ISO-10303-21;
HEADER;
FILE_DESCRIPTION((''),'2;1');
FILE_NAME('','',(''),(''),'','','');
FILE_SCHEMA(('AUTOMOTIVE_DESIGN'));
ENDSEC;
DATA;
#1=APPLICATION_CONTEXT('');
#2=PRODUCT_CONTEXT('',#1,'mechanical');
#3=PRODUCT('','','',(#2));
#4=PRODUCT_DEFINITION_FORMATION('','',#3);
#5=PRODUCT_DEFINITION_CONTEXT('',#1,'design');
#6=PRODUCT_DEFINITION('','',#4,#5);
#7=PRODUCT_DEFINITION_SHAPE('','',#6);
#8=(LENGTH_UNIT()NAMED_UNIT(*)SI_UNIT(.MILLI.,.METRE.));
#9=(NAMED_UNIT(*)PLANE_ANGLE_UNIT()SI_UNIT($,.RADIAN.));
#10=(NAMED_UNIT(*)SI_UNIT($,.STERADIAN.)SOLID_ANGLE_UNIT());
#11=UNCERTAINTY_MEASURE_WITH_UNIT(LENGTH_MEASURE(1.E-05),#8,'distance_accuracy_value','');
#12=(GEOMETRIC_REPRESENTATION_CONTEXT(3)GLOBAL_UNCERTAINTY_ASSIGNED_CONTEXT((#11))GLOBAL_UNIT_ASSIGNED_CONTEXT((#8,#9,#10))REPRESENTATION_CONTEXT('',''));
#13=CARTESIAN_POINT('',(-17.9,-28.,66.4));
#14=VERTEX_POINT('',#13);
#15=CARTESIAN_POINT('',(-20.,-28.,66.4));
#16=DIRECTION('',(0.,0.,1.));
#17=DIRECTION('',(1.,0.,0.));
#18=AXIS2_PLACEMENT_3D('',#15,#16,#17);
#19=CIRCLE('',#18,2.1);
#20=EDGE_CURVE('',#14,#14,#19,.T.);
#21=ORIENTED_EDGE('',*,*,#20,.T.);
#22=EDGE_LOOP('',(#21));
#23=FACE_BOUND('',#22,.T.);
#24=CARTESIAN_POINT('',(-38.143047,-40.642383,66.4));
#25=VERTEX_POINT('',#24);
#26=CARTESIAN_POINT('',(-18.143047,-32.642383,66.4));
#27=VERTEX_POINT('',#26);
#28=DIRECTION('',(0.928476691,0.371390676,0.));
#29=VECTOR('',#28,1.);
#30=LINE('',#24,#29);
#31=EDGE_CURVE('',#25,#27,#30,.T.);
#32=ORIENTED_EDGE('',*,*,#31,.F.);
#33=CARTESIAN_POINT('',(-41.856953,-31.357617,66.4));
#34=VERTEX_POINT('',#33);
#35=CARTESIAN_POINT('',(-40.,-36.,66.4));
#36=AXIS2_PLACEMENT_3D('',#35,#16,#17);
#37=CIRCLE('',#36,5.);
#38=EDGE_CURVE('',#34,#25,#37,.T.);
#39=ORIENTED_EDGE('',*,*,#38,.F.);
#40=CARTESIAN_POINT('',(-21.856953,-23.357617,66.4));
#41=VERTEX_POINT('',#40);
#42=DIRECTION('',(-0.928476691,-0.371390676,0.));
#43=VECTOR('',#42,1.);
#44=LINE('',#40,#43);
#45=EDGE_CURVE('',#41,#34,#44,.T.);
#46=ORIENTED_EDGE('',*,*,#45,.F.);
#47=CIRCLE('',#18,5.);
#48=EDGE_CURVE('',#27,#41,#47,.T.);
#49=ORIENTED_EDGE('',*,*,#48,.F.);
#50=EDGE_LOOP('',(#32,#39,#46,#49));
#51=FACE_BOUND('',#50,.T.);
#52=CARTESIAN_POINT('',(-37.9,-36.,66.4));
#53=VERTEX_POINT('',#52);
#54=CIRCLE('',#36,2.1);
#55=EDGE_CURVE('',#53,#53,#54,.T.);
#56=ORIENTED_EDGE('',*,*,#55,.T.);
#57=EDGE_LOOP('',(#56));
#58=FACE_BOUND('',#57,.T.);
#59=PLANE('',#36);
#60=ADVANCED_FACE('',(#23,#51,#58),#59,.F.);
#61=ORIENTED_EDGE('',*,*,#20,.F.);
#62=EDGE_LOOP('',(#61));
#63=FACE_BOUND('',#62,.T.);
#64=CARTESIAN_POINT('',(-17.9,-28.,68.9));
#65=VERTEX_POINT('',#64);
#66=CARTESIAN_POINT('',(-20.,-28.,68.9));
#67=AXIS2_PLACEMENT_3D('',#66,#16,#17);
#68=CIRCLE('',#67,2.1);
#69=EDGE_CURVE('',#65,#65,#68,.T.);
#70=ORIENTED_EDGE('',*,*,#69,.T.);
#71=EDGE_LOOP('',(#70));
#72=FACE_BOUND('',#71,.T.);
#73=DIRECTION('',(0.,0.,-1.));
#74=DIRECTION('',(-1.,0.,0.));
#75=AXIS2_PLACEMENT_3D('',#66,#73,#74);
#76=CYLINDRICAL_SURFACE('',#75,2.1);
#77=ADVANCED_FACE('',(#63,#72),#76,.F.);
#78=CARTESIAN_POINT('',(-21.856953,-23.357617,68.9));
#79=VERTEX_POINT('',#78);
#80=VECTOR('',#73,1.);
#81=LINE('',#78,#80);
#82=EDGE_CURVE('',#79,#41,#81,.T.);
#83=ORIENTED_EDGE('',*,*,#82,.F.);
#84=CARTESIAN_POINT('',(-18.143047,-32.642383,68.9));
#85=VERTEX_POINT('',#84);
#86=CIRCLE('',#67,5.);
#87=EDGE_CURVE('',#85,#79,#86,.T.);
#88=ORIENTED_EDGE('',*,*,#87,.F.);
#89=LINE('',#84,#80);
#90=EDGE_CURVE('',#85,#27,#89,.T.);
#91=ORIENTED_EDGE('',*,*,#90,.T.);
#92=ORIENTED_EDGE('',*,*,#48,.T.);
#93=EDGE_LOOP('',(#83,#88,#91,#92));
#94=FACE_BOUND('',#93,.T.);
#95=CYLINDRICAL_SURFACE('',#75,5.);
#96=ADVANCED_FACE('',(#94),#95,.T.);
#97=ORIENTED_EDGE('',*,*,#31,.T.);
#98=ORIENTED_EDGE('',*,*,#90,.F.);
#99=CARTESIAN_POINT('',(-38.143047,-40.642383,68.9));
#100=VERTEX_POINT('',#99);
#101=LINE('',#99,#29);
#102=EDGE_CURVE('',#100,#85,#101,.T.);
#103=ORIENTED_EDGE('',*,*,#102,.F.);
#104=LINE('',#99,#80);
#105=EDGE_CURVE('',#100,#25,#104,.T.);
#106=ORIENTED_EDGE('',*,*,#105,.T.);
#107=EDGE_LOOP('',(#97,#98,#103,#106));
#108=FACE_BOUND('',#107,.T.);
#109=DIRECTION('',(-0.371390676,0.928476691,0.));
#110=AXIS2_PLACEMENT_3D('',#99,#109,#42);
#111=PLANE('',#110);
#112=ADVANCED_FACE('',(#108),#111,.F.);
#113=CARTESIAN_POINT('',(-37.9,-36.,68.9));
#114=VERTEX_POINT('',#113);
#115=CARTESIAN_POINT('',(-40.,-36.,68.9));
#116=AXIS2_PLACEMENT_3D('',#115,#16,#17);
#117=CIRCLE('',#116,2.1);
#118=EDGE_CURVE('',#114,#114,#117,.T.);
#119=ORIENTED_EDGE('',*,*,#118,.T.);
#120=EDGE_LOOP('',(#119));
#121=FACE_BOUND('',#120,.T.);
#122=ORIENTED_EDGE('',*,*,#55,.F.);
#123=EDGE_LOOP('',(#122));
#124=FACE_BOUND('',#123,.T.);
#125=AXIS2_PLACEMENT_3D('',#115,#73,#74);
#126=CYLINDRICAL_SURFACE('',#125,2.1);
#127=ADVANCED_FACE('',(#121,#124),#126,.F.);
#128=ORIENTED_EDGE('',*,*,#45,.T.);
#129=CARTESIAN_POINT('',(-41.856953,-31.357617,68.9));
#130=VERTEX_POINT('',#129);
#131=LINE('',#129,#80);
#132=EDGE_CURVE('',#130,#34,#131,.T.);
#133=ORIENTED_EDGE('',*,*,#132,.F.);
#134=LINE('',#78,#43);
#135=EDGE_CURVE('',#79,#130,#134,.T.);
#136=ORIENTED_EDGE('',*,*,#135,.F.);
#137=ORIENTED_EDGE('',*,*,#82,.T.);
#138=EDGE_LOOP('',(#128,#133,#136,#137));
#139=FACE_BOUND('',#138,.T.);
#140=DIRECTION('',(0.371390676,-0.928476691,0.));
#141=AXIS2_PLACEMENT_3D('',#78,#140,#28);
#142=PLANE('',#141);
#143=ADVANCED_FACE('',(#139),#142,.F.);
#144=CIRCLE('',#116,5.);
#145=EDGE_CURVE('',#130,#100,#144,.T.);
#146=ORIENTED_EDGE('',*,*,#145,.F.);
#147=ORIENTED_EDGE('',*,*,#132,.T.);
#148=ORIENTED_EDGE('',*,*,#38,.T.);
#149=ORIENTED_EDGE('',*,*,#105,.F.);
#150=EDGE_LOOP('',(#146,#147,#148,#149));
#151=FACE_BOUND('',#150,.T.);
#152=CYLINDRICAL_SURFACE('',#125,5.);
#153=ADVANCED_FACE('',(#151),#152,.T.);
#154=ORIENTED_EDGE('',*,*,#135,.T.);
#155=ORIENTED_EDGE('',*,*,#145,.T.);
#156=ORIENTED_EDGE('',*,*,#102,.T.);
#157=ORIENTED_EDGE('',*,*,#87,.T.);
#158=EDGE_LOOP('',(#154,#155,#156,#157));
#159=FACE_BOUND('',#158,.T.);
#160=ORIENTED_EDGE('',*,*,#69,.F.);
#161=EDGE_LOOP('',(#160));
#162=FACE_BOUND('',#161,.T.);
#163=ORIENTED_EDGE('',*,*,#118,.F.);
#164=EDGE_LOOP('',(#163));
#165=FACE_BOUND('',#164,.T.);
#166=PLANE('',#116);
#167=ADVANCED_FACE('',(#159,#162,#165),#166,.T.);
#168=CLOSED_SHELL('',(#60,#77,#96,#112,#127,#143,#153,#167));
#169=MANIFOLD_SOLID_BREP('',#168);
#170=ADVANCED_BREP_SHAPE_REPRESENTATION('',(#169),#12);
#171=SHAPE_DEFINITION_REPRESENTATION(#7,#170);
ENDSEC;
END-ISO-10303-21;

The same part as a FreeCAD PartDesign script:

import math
import FreeCAD as App
import Part
import Sketcher
from FreeCAD import Vector
Q = App.Units.Quantity

doc = App.newDocument("Part")
body = doc.addObject("PartDesign::Body", "Body")

sketch1 = body.newObject("Sketcher::SketchObject", "Sketch")
sketch1.AttachmentSupport = (doc.getObject("XY_Plane"), [""])
sketch1.MapMode = "FlatFace"
sketch1.AttachmentOffset = App.Placement(Vector(0, 0, 66.4), App.Rotation())
sketch1.addGeometry([
    Part.LineSegment(Vector(-38.1, -40.6, 0), Vector(-18.1, -32.6, 0)),
    Part.ArcOfCircle(Part.Circle(Vector(-20, -28, 0), Vector(0, 0, 1), 5), math.radians(-68), math.radians(112)),
    Part.LineSegment(Vector(-21.9, -23.4, 0), Vector(-41.9, -31.4, 0)),
    Part.ArcOfCircle(Part.Circle(Vector(-40, -36, 0), Vector(0, 0, 1), 5), math.radians(112), math.radians(292)),
    Part.Circle(Vector(-40, -36, 0), Vector(0, 0, 1), 2.1),
    Part.Circle(Vector(-20, -28, 0), Vector(0, 0, 1), 2.1),
], False)
sketch1.addConstraint([
    Sketcher.Constraint("Tangent", 0, 2, 1, 1),
    Sketcher.Constraint("Tangent", 1, 2, 2, 1),
    Sketcher.Constraint("Tangent", 2, 2, 3, 1),
    Sketcher.Constraint("Tangent", 3, 2, 0, 1),
    Sketcher.Constraint("Coincident", 4, 3, 3, 3),
    Sketcher.Constraint("Coincident", 5, 3, 1, 3),
    Sketcher.Constraint("Equal", 1, 3),
    Sketcher.Constraint("Equal", 4, 5),
    Sketcher.Constraint("Radius", 1, Q("5 mm")),
    Sketcher.Constraint("Diameter", 4, Q("4.2 mm")),
    Sketcher.Constraint("DistanceX", 1, 3, -1, 1, Q("20 mm")),
    Sketcher.Constraint("DistanceY", 1, 3, -1, 1, Q("28 mm")),
    Sketcher.Constraint("DistanceX", 3, 3, -1, 1, Q("40 mm")),
    Sketcher.Constraint("DistanceY", 3, 3, -1, 1, Q("36 mm")),
])
pad1 = body.newObject("PartDesign::Pad", "Pad")
pad1.Profile = sketch1
pad1.Length = 2.5

doc.recompute()
